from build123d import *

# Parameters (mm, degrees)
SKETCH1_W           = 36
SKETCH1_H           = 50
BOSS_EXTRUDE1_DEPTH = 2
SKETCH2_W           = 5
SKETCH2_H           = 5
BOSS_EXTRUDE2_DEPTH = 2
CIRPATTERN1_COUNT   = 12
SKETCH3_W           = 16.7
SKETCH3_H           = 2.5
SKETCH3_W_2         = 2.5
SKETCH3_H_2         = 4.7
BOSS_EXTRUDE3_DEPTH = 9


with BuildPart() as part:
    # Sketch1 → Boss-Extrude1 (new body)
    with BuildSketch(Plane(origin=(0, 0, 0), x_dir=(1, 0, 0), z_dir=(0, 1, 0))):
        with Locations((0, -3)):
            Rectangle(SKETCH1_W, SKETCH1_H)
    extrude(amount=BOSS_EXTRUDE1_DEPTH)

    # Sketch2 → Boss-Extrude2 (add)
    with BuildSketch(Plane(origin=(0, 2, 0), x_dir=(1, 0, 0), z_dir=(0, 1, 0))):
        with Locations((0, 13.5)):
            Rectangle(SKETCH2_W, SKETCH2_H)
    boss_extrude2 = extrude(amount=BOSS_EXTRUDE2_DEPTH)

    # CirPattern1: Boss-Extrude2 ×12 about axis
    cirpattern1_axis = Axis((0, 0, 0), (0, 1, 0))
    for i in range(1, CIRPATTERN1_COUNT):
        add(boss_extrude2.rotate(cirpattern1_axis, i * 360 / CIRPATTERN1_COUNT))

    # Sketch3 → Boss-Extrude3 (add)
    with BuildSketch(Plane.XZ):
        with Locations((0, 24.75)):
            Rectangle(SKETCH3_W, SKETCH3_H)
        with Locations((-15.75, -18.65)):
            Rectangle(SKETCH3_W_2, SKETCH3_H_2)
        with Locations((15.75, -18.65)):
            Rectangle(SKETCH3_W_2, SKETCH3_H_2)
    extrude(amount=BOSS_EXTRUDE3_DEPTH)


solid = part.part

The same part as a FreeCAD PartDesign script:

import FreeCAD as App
import Part
import Sketcher
from FreeCAD import Vector
Q = App.Units.Quantity


def add_polygon(sketch, points):
    """Adds a closed chain of lines whose ends are joined by coincident constraints."""
    first, n = sketch.GeometryCount, len(points)
    for a, b in zip(points, points[1:] + points[:1]):
        sketch.addGeometry(Part.LineSegment(App.Vector(*a, 0), App.Vector(*b, 0)), False)
    for i in range(n):
        sketch.addConstraint(Sketcher.Constraint("Coincident", first + i, 2, first + (i + 1) % n, 1))

doc = App.newDocument("Part")
params = doc.addObject("Spreadsheet::Sheet", "Params")
for row, (alias, value) in enumerate([
    ("sketch1_width", "36 mm"),
    ("sketch1_height", "50 mm"),
    ("pad1_length", "2 mm"),
    ("sketch2_width", "5 mm"),
    ("pad2_length", "2 mm"),
    ("sketch3_width", "16.7 mm"),
    ("sketch3_width2", "2.5 mm"),
    ("sketch3_height", "4.7 mm"),
    ("pad3_length", "9 mm"),
], start=1):
    params.set(f"A{row}", alias)
    params.set(f"B{row}", "=" + value)
    params.setAlias(f"B{row}", alias)

body = doc.addObject("PartDesign::Body", "Body")

sketch1 = body.newObject("Sketcher::SketchObject", "Sketch")
sketch1.AttachmentSupport = (doc.getObject("XZ_Plane"), [""])
sketch1.MapMode = "FlatFace"
add_polygon(sketch1, [(-18, -22), (-18, 28), (18, 28), (18, -22)])
sketch1.addConstraint(Sketcher.Constraint("Vertical", 0))
sketch1.addConstraint(Sketcher.Constraint("Horizontal", 1))
sketch1.addConstraint(Sketcher.Constraint("Vertical", 2))
sketch1.addConstraint(Sketcher.Constraint("Horizontal", 3))
sketch1.addConstraint(Sketcher.Constraint("DistanceX", 1, 1, 1, 2, Q("36 mm")))
sketch1.addConstraint(Sketcher.Constraint("DistanceY", 0, 1, 0, 2, Q("50 mm")))
sketch1.addConstraint(Sketcher.Constraint("DistanceX", 0, 2, -1, 1, Q("18 mm")))
sketch1.addConstraint(Sketcher.Constraint("DistanceY", -1, 1, 0, 2, Q("28 mm")))
sketch1.setExpression("Constraints[8]", "Params.sketch1_width")
sketch1.setExpression("Constraints[9]", "Params.sketch1_height")
pad1 = body.newObject("PartDesign::Pad", "Pad")
pad1.Profile = sketch1
pad1.setExpression("Length", "Params.pad1_length")
pad1.Reversed = True

sketch2 = body.newObject("Sketcher::SketchObject", "Sketch001")
sketch2.AttachmentSupport = (doc.getObject("XZ_Plane"), [""])
sketch2.MapMode = "FlatFace"
sketch2.AttachmentOffset = App.Placement(Vector(0, 0, -2), App.Rotation())
add_polygon(sketch2, [(-2, -16), (-2, -11), (2, -11), (2, -16)])
sketch2.addConstraint(Sketcher.Constraint("Vertical", 0))
sketch2.addConstraint(Sketcher.Constraint("Horizontal", 1))
sketch2.addConstraint(Sketcher.Constraint("Vertical", 2))
sketch2.addConstraint(Sketcher.Constraint("Horizontal", 3))
sketch2.addConstraint(Sketcher.Constraint("Equal", 3, 0))
sketch2.addConstraint(Sketcher.Constraint("DistanceX", 1, 1, 1, 2, Q("5 mm")))
sketch2.addConstraint(Sketcher.Constraint("DistanceY", 0, 2, -1, 1, Q("11 mm")))
sketch2.addConstraint(Sketcher.Constraint("DistanceX", 0, 2, -1, 1, Q("2.5 mm")))
sketch2.setExpression("Constraints[9]", "Params.sketch2_width")
pad2 = body.newObject("PartDesign::Pad", "Pad001")
pad2.Profile = sketch2
pad2.setExpression("Length", "Params.pad2_length")
pad2.Reversed = True
doc.recompute()

polarpattern = body.newObject("PartDesign::PolarPattern", "PolarPattern")
polarpattern.Originals = [pad2]
polarpattern.Axis = (doc.getObject("Y_Axis"), [""])
polarpattern.Angle = 360
polarpattern.Occurrences = 12
body.Tip = polarpattern

sketch3 = body.newObject("Sketcher::SketchObject", "Sketch002")
sketch3.AttachmentSupport = (doc.getObject("XZ_Plane"), [""])
sketch3.MapMode = "FlatFace"
add_polygon(sketch3, [(-8.3, 26), (-8.3, 23.5), (8.3, 23.5), (8.3, 26)])
add_polygon(sketch3, [(-17, -16.3), (-17, -21), (-14.5, -21), (-14.5, -16.3)])
add_polygon(sketch3, [(14.5, -16.3), (14.5, -21), (17, -21), (17, -16.3)])
sketch3.addConstraint(Sketcher.Constraint("Vertical", 0))
sketch3.addConstraint(Sketcher.Constraint("Horizontal", 1))
sketch3.addConstraint(Sketcher.Constraint("Vertical", 2))
sketch3.addConstraint(Sketcher.Constraint("Horizontal", 3))
sketch3.addConstraint(Sketcher.Constraint("Vertical", 4))
sketch3.addConstraint(Sketcher.Constraint("Horizontal", 5))
sketch3.addConstraint(Sketcher.Constraint("Vertical", 6))
sketch3.addConstraint(Sketcher.Constraint("Horizontal", 7))
sketch3.addConstraint(Sketcher.Constraint("Vertical", 8))
sketch3.addConstraint(Sketcher.Constraint("Horizontal", 9))
sketch3.addConstraint(Sketcher.Constraint("Vertical", 10))
sketch3.addConstraint(Sketcher.Constraint("Horizontal", 11))
sketch3.addConstraint(Sketcher.Constraint("Symmetric", 5, 2, 8, 2, -2))
sketch3.addConstraint(Sketcher.Constraint("Symmetric", 7, 2, 10, 2, -2))
sketch3.addConstraint(Sketcher.Constraint("Equal", 11, 0))
sketch3.addConstraint(Sketcher.Constraint("DistanceX", 1, 1, 1, 2, Q("16.7 mm")))
sketch3.addConstraint(Sketcher.Constraint("DistanceX", 5, 1, 5, 2, Q("2.5 mm")))
sketch3.addConstraint(Sketcher.Constraint("DistanceY", 4, 2, 4, 1, Q("4.7 mm")))
sketch3.addConstraint(Sketcher.Constraint("DistanceY", -1, 1, 2, 2, Q("26 mm")))
sketch3.addConstraint(Sketcher.Constraint("DistanceX", 4, 2, -1, 1, Q("17 mm")))
sketch3.addConstraint(Sketcher.Constraint("DistanceY", 4, 2, -1, 1, Q("21 mm")))
sketch3.addConstraint(Sketcher.Constraint("DistanceX", 0, 2, -1, 1, Q("8.35 mm")))
sketch3.setExpression("Constraints[27]", "Params.sketch3_width")
sketch3.setExpression("Constraints[28]", "Params.sketch3_width2")
sketch3.setExpression("Constraints[29]", "Params.sketch3_height")
pad3 = body.newObject("PartDesign::Pad", "Pad002")
pad3.Profile = sketch3
pad3.setExpression("Length", "Params.pad3_length")

doc.recompute()
